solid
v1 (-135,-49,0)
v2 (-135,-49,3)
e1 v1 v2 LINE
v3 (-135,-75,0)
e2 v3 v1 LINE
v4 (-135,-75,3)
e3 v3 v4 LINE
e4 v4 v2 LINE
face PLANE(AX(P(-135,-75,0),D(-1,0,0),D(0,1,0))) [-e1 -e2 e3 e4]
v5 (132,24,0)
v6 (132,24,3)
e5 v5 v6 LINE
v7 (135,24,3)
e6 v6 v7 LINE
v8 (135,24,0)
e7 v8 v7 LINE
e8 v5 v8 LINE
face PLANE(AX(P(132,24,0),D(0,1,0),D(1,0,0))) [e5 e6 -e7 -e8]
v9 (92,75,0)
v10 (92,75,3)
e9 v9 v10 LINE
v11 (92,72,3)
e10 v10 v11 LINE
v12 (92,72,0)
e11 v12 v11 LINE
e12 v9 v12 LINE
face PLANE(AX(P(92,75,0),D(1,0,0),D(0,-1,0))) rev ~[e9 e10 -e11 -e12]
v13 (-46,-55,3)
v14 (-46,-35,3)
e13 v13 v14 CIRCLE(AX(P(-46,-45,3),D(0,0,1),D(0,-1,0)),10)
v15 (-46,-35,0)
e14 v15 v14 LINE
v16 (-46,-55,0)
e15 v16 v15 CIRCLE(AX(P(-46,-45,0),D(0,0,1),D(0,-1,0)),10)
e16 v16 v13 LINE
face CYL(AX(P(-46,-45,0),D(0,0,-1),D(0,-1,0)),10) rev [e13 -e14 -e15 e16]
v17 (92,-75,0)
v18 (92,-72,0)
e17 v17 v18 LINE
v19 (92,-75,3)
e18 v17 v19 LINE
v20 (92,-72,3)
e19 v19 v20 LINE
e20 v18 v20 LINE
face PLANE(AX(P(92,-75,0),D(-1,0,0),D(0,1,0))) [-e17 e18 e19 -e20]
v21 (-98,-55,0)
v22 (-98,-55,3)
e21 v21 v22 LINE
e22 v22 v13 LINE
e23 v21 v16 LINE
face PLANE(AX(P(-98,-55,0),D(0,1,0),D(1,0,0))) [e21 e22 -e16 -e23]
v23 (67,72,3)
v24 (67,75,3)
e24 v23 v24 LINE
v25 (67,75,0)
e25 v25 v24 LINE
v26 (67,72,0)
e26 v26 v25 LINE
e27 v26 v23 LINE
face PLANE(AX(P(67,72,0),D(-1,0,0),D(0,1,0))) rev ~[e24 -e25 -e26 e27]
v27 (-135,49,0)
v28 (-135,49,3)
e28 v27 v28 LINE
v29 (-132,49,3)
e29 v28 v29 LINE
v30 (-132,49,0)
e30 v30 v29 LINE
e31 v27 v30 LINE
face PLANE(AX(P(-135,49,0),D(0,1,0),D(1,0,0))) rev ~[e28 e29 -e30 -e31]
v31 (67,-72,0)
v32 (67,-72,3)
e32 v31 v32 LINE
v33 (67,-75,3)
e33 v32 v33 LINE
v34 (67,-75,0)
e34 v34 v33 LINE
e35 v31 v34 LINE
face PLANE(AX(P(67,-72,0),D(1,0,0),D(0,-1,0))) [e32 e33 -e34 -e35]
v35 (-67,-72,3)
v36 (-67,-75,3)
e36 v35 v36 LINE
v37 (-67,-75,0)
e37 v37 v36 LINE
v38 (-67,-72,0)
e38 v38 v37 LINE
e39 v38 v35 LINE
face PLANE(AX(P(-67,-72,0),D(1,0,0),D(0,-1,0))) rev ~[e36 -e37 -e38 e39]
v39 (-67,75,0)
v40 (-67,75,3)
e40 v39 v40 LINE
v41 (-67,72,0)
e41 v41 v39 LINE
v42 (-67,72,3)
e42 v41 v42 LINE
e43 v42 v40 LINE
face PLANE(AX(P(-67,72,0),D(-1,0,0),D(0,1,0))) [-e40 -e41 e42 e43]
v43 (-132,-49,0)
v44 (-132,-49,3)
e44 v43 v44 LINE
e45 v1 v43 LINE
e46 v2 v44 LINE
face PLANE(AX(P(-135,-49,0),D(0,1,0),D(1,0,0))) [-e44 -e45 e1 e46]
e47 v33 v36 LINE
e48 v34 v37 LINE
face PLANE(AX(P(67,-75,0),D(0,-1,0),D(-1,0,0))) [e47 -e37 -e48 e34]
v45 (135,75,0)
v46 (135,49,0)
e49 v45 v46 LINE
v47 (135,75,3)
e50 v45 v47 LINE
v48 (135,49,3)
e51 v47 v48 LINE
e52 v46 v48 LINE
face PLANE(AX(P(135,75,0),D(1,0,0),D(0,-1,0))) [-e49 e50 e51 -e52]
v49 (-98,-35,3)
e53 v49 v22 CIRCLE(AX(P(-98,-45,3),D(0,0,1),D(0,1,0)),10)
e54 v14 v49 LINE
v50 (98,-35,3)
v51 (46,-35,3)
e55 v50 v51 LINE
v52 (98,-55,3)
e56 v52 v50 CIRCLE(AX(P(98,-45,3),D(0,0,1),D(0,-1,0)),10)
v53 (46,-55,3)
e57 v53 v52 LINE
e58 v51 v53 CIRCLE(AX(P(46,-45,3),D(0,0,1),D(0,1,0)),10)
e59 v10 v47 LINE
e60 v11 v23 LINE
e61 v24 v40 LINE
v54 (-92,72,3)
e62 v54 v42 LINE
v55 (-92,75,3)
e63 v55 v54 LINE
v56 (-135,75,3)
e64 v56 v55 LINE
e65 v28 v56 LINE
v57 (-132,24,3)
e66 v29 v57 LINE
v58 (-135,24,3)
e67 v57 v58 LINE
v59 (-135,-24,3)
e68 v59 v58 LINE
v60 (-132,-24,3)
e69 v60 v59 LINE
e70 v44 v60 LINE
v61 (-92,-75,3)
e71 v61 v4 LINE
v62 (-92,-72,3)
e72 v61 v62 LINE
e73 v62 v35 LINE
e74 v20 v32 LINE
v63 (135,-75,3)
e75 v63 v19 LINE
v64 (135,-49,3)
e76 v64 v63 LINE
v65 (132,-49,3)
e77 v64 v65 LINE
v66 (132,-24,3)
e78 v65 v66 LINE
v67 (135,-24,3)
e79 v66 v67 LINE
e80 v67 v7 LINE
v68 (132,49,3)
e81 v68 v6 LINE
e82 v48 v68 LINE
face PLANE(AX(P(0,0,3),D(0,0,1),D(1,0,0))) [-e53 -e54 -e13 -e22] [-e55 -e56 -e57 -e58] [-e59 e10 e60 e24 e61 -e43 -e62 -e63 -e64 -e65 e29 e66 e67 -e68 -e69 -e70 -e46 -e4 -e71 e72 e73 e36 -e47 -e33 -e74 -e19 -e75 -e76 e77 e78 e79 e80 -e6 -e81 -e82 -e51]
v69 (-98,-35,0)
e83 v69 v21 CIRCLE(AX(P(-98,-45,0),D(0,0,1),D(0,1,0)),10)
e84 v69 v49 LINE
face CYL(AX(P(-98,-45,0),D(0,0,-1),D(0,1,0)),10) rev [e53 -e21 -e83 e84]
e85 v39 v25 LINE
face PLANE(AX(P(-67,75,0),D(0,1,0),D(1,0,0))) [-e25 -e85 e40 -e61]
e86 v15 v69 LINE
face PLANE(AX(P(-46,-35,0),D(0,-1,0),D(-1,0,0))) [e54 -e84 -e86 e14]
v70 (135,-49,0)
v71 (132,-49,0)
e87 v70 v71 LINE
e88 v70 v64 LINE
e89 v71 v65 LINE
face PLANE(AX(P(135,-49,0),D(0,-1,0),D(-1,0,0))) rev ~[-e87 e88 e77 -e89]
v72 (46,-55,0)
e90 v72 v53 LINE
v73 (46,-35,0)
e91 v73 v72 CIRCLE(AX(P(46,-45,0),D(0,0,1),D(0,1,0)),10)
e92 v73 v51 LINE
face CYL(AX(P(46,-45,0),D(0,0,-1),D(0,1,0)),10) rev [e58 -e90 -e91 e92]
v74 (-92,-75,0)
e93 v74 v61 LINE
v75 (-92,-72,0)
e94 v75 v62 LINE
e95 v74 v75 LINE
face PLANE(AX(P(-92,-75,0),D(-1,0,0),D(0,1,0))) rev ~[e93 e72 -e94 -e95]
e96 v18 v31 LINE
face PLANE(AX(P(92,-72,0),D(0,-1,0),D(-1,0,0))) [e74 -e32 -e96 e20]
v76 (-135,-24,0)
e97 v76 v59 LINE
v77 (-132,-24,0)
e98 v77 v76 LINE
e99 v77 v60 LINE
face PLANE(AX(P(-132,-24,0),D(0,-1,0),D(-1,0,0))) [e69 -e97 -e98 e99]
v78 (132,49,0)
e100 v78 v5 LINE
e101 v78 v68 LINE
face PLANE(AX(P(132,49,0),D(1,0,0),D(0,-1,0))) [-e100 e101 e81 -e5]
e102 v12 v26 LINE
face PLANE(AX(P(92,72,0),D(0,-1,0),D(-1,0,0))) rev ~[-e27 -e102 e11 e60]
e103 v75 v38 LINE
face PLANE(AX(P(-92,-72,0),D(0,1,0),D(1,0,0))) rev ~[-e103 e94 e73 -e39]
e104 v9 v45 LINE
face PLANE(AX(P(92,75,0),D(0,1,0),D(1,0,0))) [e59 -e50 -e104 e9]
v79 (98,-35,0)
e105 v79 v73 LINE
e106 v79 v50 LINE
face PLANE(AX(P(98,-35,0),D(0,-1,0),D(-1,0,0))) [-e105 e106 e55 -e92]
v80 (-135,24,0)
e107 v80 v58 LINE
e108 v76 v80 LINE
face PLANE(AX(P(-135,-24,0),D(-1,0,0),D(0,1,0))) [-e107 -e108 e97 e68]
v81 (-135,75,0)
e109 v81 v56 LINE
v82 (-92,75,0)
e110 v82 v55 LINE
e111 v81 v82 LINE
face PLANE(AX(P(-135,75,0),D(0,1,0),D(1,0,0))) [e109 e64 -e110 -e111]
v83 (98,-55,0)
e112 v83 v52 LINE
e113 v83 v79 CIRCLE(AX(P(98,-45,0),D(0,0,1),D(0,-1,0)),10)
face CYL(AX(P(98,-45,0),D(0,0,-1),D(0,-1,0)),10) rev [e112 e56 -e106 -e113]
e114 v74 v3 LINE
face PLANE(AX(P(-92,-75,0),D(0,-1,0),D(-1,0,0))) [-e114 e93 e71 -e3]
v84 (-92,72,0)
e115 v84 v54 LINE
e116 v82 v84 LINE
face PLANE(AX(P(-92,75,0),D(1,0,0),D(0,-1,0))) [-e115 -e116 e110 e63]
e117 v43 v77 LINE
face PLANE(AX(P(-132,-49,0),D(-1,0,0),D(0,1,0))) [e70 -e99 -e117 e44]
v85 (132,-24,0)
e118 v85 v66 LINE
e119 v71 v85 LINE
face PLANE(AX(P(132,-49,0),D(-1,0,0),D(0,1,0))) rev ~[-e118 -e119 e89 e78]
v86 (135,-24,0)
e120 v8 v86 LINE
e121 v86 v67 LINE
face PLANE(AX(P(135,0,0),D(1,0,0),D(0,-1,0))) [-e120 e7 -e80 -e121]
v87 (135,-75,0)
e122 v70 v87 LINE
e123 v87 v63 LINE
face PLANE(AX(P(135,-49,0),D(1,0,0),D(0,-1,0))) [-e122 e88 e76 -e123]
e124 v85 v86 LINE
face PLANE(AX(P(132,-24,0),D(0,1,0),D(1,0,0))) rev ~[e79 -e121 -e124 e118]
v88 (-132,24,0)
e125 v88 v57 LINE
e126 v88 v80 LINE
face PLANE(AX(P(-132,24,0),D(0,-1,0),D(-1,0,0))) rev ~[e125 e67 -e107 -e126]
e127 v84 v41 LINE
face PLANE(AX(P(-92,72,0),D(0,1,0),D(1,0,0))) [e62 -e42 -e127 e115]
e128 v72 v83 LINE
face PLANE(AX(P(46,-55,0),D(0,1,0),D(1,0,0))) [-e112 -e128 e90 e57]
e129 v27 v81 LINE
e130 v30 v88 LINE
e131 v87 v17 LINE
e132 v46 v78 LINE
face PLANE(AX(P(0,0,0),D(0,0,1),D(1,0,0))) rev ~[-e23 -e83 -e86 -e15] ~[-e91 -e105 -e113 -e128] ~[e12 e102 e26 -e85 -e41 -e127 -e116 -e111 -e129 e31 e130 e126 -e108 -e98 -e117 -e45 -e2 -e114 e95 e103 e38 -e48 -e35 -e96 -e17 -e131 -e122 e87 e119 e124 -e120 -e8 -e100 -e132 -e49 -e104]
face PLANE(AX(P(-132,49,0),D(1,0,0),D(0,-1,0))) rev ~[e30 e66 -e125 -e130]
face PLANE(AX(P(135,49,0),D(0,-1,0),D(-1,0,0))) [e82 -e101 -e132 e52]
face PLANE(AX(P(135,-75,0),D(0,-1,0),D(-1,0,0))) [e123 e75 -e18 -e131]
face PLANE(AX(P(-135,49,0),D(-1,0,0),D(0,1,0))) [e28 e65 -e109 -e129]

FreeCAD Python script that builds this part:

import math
import FreeCAD as App
import Part
import Sketcher
Q = App.Units.Quantity


def add_polygon(sketch, points):
    """Adds a closed chain of lines whose ends are joined by coincident constraints."""
    first, n = sketch.GeometryCount, len(points)
    for a, b in zip(points, points[1:] + points[:1]):
        sketch.addGeometry(Part.LineSegment(App.Vector(*a, 0), App.Vector(*b, 0)), False)
    for i in range(n):
        sketch.addConstraint(Sketcher.Constraint("Coincident", first + i, 2, first + (i + 1) % n, 1))

doc = App.newDocument("Part")
body = doc.addObject("PartDesign::Body", "Body")

sketch1 = body.newObject("Sketcher::SketchObject", "Sketch")
sketch1.AttachmentSupport = (doc.getObject("XY_Plane"), [""])
sketch1.MapMode = "FlatFace"
add_polygon(sketch1, [(-92, 75), (-135, 75), (-135, 49), (-132, 49), (-132, 24), (-135, 24), (-135, -24), (-132, -24), (-132, -49), (-135, -49), (-135, -75), (-92, -75), (-92, -72), (-67, -72), (-67, -75), (67, -75), (67, -72), (92, -72), (92, -75), (135, -75), (135, -49), (132, -49), (132, -24), (135, -24), (135, 24), (132, 24), (132, 49), (135, 49), (135, 75), (92, 75), (92, 72), (67, 72), (67, 75), (-67, 75), (-67, 72), (-92, 72)])
sketch1.addGeometry(Part.LineSegment(App.Vector(-46, -55, 0), App.Vector(-98, -55, 0)), False)
sketch1.addGeometry(Part.ArcOfCircle(Part.Circle(App.Vector(-98, -45, 0), App.Vector(0, 0, 1), 10), math.radians(90), math.radians(270)), False)
sketch1.addGeometry(Part.LineSegment(App.Vector(-98, -35, 0), App.Vector(-46, -35, 0)), False)
sketch1.addGeometry(Part.ArcOfCircle(Part.Circle(App.Vector(-46, -45, 0), App.Vector(0, 0, 1), 10), math.radians(-90), math.radians(90)), False)
sketch1.addGeometry(Part.LineSegment(App.Vector(98, -55, 0), App.Vector(46, -55, 0)), False)
sketch1.addGeometry(Part.ArcOfCircle(Part.Circle(App.Vector(46, -45, 0), App.Vector(0, 0, 1), 10), math.radians(90), math.radians(270)), False)
sketch1.addGeometry(Part.LineSegment(App.Vector(46, -35, 0), App.Vector(98, -35, 0)), False)
sketch1.addGeometry(Part.ArcOfCircle(Part.Circle(App.Vector(98, -45, 0), App.Vector(0, 0, 1), 10), math.radians(-90), math.radians(90)), False)
sketch1.addConstraint([
    Sketcher.Constraint("Tangent", 36, 2, 37, 2),
    Sketcher.Constraint("Tangent", 37, 1, 38, 1),
    Sketcher.Constraint("Tangent", 38, 2, 39, 2),
    Sketcher.Constraint("Tangent", 39, 1, 36, 1),
    Sketcher.Constraint("Tangent", 40, 2, 41, 2),
    Sketcher.Constraint("Tangent", 41, 1, 42, 1),
    Sketcher.Constraint("Tangent", 42, 2, 43, 2),
    Sketcher.Constraint("Tangent", 43, 1, 40, 1),
    Sketcher.Constraint("Horizontal", 0),
    Sketcher.Constraint("Vertical", 1),
    Sketcher.Constraint("Horizontal", 2),
    Sketcher.Constraint("Vertical", 3),
    Sketcher.Constraint("Horizontal", 4),
    Sketcher.Constraint("Vertical", 5),
    Sketcher.Constraint("Horizontal", 6),
    Sketcher.Constraint("Vertical", 7),
    Sketcher.Constraint("Horizontal", 8),
    Sketcher.Constraint("Vertical", 9),
    Sketcher.Constraint("Horizontal", 10),
    Sketcher.Constraint("Vertical", 11),
    Sketcher.Constraint("Horizontal", 12),
    Sketcher.Constraint("Vertical", 13),
    Sketcher.Constraint("Horizontal", 14),
    Sketcher.Constraint("Vertical", 15),
    Sketcher.Constraint("Horizontal", 16),
    Sketcher.Constraint("Vertical", 17),
    Sketcher.Constraint("Horizontal", 18),
    Sketcher.Constraint("Vertical", 19),
    Sketcher.Constraint("Horizontal", 20),
    Sketcher.Constraint("Vertical", 21),
    Sketcher.Constraint("Horizontal", 22),
    Sketcher.Constraint("Vertical", 23),
    Sketcher.Constraint("Horizontal", 24),
    Sketcher.Constraint("Vertical", 25),
    Sketcher.Constraint("Horizontal", 26),
    Sketcher.Constraint("Vertical", 27),
    Sketcher.Constraint("Horizontal", 28),
    Sketcher.Constraint("Vertical", 29),
    Sketcher.Constraint("Horizontal", 30),
    Sketcher.Constraint("Vertical", 31),
    Sketcher.Constraint("Horizontal", 32),
    Sketcher.Constraint("Vertical", 33),
    Sketcher.Constraint("Horizontal", 34),
    Sketcher.Constraint("Vertical", 35),
    Sketcher.Constraint("Horizontal", 36),
    Sketcher.Constraint("Horizontal", 38),
    Sketcher.Constraint("Horizontal", 40),
    Sketcher.Constraint("Horizontal", 42),
    Sketcher.Constraint("Equal", 39, 41),
    Sketcher.Constraint("Symmetric", 0, 2, 18, 2, -1, 1),
    Sketcher.Constraint("Symmetric", 2, 2, 20, 2, -1, 1),
    Sketcher.Constraint("Symmetric", 4, 2, 22, 2, -1, 1),
    Sketcher.Constraint("Symmetric", 6, 2, 24, 2, -1, 1),
    Sketcher.Constraint("Symmetric", 8, 2, 26, 2, -1, 1),
    Sketcher.Constraint("Symmetric", 10, 2, 28, 2, -1, 1),
    Sketcher.Constraint("Symmetric", 12, 2, 30, 2, -1, 1),
    Sketcher.Constraint("Symmetric", 14, 2, 32, 2, -1, 1),
    Sketcher.Constraint("Symmetric", 16, 2, 34, 2, -1, 1),
    Sketcher.Constraint("Symmetric", 39, 3, 41, 3, -2),
    Sketcher.Constraint("Symmetric", 12, 2, 15, 2, -2),
    Sketcher.Constraint("Symmetric", 10, 2, 17, 2, -2),
    Sketcher.Constraint("Symmetric", 8, 2, 19, 2, -2),
    Sketcher.Constraint("Symmetric", 6, 2, 21, 2, -2),
    Sketcher.Constraint("Horizontal", 10, 2, 13, 2),
    Sketcher.Constraint("Vertical", 1, 2, 4, 2),
    Sketcher.Constraint("Equal", 38, 40),
    Sketcher.Constraint("Equal", 34, 3),
    Sketcher.Constraint("Equal", 26, 11),
    Sketcher.Constraint("Radius", 37, Q("10 mm")),
    Sketcher.Constraint("DistanceX", 0, 2, 0, 1, Q("43 mm")),
    Sketcher.Constraint("DistanceX", 2, 1, 2, 2, Q("3 mm")),
    Sketcher.Constraint("DistanceX", 12, 1, 12, 2, Q("25 mm")),
    Sketcher.Constraint("DistanceX", 36, 2, 36, 1, Q("52 mm")),
    Sketcher.Constraint("DistanceY", 1, 2, 1, 1, Q("26 mm")),
    Sketcher.Constraint("DistanceX", 0, 2, 37, 3, Q("37 mm")),
    Sketcher.Constraint("DistanceY", 9, 2, 37, 3, Q("30 mm")),
    Sketcher.Constraint("DistanceX", 14, 1, 14, 2, Q("134 mm")),
    Sketcher.Constraint("DistanceY", 5, 2, 5, 1, Q("48 mm")),
])
pad1 = body.newObject("PartDesign::Pad", "Pad")
pad1.Profile = sketch1
pad1.Length = 3

doc.recompute()
